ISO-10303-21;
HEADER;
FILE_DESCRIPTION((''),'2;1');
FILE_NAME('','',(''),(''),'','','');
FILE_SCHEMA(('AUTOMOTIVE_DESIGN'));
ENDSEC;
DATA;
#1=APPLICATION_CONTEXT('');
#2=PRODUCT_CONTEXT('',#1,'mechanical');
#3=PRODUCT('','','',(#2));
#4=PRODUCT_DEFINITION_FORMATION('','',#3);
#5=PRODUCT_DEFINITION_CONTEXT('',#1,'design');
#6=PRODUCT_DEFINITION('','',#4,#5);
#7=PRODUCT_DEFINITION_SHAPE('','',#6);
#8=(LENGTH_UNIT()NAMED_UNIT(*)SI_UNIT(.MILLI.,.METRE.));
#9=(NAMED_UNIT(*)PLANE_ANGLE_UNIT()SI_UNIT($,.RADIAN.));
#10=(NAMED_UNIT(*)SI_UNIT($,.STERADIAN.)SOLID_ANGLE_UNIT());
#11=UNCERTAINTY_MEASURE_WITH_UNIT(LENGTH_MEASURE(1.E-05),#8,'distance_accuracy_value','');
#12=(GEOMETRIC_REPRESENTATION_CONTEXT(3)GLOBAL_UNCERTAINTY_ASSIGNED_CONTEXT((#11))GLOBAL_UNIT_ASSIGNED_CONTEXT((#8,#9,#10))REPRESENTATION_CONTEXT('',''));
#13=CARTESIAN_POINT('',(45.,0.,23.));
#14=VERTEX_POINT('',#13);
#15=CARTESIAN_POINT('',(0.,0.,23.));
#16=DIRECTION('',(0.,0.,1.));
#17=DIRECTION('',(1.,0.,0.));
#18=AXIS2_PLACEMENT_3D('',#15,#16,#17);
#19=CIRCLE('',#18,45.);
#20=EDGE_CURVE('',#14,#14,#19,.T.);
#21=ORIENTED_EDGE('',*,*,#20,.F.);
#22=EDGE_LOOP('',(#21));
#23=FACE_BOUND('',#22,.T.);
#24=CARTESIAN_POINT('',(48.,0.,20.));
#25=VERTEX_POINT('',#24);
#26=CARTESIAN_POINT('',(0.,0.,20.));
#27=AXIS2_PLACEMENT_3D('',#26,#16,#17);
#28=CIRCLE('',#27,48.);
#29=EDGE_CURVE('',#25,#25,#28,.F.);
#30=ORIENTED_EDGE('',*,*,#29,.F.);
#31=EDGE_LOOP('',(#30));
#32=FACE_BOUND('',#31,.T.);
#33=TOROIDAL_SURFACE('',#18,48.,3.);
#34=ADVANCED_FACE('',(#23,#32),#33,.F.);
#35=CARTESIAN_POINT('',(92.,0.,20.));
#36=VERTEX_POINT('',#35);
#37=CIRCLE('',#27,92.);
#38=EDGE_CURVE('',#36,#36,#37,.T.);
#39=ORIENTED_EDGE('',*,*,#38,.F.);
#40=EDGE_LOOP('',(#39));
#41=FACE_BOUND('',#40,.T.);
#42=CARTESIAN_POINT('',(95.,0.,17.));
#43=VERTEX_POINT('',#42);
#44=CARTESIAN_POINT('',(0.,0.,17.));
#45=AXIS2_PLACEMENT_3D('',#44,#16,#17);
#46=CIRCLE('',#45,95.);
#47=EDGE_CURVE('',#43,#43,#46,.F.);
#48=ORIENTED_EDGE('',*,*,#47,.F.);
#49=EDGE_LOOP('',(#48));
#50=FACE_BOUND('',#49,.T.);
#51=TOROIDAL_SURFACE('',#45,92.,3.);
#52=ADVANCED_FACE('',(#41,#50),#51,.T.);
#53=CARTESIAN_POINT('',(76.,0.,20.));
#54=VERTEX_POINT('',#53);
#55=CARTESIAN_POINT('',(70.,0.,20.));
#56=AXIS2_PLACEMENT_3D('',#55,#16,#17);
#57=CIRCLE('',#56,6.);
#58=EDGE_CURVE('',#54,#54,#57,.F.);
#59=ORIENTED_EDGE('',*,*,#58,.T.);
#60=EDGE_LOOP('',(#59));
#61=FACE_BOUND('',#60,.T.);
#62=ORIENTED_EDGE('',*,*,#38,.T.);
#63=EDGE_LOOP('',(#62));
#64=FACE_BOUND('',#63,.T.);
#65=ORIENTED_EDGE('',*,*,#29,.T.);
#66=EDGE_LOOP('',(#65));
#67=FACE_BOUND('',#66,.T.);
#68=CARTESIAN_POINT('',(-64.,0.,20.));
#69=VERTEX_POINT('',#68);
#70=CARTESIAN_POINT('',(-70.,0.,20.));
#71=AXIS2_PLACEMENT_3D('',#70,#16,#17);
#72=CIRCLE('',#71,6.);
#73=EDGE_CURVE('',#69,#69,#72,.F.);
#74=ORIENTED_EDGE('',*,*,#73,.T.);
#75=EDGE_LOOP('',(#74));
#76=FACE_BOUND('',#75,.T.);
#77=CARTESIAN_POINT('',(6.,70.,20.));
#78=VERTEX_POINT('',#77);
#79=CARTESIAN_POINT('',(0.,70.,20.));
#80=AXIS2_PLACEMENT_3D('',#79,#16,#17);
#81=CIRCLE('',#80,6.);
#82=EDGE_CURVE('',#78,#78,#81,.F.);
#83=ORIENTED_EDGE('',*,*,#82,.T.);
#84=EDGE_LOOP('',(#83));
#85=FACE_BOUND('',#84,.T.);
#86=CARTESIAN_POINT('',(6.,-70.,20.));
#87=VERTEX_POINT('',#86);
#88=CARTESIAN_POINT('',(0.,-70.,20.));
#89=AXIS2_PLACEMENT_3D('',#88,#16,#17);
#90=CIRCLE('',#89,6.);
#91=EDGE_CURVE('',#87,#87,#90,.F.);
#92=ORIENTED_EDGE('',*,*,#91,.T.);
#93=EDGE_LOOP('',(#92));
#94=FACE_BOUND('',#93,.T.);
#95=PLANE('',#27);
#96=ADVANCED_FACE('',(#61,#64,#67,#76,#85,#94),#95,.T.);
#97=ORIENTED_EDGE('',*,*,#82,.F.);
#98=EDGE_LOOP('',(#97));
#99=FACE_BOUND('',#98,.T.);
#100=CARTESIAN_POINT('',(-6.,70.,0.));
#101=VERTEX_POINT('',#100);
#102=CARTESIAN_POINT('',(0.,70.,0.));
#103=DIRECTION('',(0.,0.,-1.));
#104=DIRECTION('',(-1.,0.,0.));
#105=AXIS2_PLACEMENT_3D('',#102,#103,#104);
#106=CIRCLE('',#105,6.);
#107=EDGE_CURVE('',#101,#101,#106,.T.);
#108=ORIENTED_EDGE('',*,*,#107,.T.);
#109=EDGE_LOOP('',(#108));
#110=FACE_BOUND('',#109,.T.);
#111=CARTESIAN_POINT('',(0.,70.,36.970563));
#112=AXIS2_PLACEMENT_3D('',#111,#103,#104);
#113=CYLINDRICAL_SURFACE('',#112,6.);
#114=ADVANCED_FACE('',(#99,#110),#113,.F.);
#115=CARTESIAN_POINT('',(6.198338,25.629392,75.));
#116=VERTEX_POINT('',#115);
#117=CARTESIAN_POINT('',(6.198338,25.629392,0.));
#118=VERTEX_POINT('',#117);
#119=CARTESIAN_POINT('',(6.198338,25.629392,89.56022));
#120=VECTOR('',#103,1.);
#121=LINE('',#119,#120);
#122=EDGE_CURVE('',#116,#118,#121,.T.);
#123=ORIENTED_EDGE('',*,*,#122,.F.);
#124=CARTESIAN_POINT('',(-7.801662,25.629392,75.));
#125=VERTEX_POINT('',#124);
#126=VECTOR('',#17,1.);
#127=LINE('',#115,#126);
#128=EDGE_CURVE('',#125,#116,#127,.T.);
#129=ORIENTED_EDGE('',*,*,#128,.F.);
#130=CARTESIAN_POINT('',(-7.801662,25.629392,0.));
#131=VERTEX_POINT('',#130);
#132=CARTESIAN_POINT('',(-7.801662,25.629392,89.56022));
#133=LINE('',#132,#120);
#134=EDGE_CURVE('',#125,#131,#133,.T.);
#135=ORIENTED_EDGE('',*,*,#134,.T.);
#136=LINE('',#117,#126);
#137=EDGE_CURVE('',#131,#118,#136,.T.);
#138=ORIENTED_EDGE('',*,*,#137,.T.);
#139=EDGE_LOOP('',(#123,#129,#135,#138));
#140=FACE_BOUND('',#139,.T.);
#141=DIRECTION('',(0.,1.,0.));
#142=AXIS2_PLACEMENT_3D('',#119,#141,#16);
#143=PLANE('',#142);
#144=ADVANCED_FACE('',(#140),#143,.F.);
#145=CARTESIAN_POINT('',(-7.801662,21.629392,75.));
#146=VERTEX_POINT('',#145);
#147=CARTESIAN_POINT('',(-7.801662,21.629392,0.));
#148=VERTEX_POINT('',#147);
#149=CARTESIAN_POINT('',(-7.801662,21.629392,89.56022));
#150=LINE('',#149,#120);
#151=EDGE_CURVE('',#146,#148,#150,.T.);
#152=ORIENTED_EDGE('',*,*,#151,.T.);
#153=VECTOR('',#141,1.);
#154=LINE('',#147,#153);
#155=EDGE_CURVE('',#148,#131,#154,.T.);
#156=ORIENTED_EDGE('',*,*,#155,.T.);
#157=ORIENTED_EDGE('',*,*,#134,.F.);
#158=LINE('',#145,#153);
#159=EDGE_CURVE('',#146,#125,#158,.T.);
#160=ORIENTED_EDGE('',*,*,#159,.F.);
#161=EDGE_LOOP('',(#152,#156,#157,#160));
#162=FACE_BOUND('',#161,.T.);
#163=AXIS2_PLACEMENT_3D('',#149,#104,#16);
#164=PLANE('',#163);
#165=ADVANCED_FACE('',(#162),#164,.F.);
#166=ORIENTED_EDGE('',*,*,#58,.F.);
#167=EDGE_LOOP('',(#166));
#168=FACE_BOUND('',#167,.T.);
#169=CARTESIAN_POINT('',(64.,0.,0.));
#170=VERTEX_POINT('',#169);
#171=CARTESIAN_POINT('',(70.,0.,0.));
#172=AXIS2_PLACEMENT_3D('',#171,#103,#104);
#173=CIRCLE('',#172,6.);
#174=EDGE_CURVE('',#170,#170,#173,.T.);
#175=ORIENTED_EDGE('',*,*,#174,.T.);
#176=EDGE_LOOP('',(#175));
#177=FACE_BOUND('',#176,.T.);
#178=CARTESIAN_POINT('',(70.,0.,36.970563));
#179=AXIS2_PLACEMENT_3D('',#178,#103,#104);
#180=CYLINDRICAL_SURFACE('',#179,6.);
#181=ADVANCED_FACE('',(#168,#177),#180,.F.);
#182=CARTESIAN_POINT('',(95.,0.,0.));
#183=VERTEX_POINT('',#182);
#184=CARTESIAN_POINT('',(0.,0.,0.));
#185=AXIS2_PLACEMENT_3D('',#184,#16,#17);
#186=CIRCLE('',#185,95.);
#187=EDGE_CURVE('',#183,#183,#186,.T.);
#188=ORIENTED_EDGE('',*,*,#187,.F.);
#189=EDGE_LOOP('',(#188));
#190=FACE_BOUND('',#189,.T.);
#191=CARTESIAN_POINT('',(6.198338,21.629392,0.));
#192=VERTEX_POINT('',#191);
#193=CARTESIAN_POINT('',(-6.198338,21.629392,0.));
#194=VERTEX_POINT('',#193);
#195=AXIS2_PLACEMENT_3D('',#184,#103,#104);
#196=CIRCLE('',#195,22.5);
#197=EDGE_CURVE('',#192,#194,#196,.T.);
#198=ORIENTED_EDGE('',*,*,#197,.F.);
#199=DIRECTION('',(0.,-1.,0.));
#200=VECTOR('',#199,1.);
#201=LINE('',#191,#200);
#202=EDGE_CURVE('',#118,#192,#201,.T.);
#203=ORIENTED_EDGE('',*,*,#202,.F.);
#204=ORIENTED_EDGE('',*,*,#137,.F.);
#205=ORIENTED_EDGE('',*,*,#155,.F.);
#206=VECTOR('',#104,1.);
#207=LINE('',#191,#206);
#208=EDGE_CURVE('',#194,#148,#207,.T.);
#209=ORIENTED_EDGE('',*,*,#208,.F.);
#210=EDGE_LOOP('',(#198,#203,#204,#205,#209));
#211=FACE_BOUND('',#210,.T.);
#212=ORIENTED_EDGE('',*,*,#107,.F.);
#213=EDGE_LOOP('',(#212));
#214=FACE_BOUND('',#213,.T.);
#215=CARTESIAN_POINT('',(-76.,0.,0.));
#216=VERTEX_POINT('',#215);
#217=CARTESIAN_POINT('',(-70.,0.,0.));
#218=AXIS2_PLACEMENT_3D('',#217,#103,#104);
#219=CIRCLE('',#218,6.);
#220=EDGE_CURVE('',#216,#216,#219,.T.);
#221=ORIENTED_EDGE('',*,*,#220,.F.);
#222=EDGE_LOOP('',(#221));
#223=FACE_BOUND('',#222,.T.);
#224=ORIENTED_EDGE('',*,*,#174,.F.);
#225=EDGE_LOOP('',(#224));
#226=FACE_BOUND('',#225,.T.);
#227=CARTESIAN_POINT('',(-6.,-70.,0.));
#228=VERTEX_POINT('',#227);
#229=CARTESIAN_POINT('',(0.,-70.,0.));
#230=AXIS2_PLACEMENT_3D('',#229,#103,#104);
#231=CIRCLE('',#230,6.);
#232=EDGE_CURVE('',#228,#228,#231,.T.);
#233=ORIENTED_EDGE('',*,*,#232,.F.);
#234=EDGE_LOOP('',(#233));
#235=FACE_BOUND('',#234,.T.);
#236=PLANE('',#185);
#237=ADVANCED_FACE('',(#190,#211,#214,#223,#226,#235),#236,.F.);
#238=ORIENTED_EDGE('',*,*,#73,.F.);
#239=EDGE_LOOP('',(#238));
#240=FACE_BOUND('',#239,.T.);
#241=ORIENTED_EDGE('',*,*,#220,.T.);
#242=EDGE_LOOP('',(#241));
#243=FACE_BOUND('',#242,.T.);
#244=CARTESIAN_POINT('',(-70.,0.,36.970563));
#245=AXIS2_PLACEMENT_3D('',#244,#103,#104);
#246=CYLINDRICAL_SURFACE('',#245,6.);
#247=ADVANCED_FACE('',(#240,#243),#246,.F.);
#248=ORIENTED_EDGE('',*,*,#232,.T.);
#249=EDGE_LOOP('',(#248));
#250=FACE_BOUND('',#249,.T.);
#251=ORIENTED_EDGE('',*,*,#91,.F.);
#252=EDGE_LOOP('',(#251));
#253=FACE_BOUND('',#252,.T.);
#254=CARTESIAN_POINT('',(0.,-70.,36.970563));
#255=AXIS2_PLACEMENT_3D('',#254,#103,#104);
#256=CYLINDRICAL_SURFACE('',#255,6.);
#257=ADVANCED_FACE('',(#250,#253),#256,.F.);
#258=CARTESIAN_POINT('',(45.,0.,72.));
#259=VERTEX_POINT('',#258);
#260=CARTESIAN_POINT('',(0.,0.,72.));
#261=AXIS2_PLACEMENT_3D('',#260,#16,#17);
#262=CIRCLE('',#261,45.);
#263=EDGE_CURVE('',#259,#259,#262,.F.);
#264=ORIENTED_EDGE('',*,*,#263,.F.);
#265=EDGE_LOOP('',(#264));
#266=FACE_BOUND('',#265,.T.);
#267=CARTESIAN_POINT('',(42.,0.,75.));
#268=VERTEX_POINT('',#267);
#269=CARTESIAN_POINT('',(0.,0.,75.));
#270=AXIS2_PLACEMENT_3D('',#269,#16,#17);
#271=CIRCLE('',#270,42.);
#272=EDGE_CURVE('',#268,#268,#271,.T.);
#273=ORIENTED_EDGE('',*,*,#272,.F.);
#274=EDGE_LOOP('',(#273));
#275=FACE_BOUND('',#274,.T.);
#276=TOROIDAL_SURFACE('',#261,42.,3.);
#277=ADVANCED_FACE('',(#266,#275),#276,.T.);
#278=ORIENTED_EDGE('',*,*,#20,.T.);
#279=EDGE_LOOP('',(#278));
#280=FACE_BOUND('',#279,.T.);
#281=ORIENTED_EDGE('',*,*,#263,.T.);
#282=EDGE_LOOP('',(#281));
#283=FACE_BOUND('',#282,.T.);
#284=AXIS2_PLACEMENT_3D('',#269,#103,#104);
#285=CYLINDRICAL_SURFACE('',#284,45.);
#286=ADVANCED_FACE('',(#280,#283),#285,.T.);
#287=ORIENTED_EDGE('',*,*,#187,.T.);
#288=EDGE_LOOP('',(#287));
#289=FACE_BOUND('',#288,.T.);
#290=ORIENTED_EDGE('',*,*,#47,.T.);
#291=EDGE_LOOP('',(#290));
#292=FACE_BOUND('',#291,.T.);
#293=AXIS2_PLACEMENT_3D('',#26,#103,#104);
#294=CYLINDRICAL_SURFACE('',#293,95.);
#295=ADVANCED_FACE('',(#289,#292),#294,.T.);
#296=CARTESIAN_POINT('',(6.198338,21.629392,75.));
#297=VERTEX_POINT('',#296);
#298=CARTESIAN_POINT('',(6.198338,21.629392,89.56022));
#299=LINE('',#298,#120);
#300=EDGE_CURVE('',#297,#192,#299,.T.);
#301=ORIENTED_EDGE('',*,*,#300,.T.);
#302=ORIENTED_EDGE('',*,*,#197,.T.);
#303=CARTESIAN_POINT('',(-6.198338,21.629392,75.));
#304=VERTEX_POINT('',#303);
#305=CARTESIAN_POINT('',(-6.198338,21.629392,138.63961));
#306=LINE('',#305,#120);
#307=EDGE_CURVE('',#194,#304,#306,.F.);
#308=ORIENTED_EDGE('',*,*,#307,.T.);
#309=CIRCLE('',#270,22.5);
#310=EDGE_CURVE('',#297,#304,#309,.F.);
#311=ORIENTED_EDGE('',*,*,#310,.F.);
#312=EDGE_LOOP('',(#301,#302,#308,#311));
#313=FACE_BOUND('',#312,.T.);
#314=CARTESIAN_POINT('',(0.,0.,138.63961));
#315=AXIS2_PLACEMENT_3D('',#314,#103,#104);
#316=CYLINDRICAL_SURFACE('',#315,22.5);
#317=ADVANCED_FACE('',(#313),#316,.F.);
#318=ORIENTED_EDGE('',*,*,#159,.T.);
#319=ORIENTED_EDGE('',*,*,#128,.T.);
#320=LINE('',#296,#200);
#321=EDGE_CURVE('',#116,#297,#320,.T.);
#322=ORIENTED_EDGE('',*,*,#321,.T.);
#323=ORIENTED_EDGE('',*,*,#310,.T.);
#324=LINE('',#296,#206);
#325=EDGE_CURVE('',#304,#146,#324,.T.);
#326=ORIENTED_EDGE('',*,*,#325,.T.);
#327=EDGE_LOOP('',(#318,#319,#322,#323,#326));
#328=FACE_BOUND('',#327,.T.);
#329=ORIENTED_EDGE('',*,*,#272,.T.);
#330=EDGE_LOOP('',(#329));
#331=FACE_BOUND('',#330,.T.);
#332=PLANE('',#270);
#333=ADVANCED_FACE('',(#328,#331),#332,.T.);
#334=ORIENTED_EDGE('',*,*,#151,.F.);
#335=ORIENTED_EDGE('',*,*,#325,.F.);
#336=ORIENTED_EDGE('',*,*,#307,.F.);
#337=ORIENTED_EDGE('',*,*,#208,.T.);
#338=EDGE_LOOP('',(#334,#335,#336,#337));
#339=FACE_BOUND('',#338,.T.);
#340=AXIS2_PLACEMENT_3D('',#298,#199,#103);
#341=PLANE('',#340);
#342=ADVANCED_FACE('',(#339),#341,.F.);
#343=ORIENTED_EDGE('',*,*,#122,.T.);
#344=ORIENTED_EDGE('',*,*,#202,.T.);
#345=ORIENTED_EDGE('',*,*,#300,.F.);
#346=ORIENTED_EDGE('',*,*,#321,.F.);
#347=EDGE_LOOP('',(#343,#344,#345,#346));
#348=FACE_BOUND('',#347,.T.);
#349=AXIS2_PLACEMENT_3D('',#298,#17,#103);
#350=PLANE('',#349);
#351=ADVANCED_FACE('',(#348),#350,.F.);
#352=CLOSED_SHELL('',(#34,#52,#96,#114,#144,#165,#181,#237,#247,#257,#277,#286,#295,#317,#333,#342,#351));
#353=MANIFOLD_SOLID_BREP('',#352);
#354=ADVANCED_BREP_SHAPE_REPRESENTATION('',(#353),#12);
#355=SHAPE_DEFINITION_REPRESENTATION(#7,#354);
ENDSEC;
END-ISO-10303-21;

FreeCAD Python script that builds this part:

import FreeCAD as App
import Part
import Sketcher


def edges_at(feature, points):
    """Names of the edges that pass closest to the given points."""
    edges = feature.Shape.Edges
    near = lambda p: min(range(len(edges)), key=lambda i: edges[i].distToShape(Part.Vertex(*p))[0])
    return sorted({f"Edge{near(p) + 1}" for p in points})

doc = App.newDocument("Part")
body = doc.addObject("PartDesign::Body", "Body")

sketch1 = body.newObject("Sketcher::SketchObject", "Sketch")
sketch1.AttachmentSupport = (doc.getObject("XY_Plane"), [""])
sketch1.MapMode = "FlatFace"
sketch1.addGeometry(Part.Circle(App.Vector(0, 0, 0), App.Vector(0, 0, 1), 95), False)
sketch1.addConstraint(Sketcher.Constraint("Coincident", 0, 3, -1, 1))
sketch1.addConstraint(Sketcher.Constraint("Diameter", 0, 190.0))
pad1 = body.newObject("PartDesign::Pad", "Pad")
pad1.Profile = sketch1
pad1.Length = 20

sketch2 = body.newObject("Sketcher::SketchObject", "Sketch001")
sketch2.AttachmentSupport = (doc.getObject("XY_Plane"), [""])
sketch2.MapMode = "FlatFace"
sketch2.AttachmentOffset = App.Placement(App.Vector(0, 0, 20), App.Rotation())
sketch2.addGeometry(Part.Circle(App.Vector(0, 0, 0), App.Vector(0, 0, 1), 45), False)
sketch2.addConstraint(Sketcher.Constraint("Coincident", 0, 3, -1, 1))
sketch2.addConstraint(Sketcher.Constraint("Diameter", 0, 90.0))
pad2 = body.newObject("PartDesign::Pad", "Pad001")
pad2.Profile = sketch2
pad2.Length = 55

sketch3 = body.newObject("Sketcher::SketchObject", "Sketch002")
sketch3.AttachmentSupport = (doc.getObject("XY_Plane"), [""])
sketch3.MapMode = "FlatFace"
sketch3.addGeometry(Part.Circle(App.Vector(0, 0, 0), App.Vector(0, 0, 1), 22), False)
sketch3.addConstraint(Sketcher.Constraint("Coincident", 0, 3, -1, 1))
sketch3.addConstraint(Sketcher.Constraint("Diameter", 0, 45.0))
pocket1 = body.newObject("PartDesign::Pocket", "Pocket")
pocket1.Profile = sketch3
pocket1.Length = 75
pocket1.Reversed = True

sketch4 = body.newObject("Sketcher::SketchObject", "Sketch003")
sketch4.AttachmentSupport = (doc.getObject("XY_Plane"), [""])
sketch4.MapMode = "FlatFace"
sketch4.addGeometry(Part.Circle(App.Vector(0, 70, 0), App.Vector(0, 0, 1), 6), False)
sketch4.addGeometry(Part.Circle(App.Vector(-70, 0, 0), App.Vector(0, 0, 1), 6), False)
sketch4.addGeometry(Part.Circle(App.Vector(0, -70, 0), App.Vector(0, 0, 1), 6), False)
sketch4.addGeometry(Part.Circle(App.Vector(70, 0, 0), App.Vector(0, 0, 1), 6), False)
sketch4.addConstraint(Sketcher.Constraint("Equal", 0, 1))
sketch4.addConstraint(Sketcher.Constraint("Equal", 1, 2))
sketch4.addConstraint(Sketcher.Constraint("Equal", 2, 3))
sketch4.addConstraint(Sketcher.Constraint("Symmetric", 0, 3, 2, 3, -1, 1))
sketch4.addConstraint(Sketcher.Constraint("Symmetric", 1, 3, 3, 3, -1, 1))
sketch4.addConstraint(Sketcher.Constraint("PointOnObject", 0, 3, -2))
sketch4.addConstraint(Sketcher.Constraint("PointOnObject", 1, 3, -1))
sketch4.addConstraint(Sketcher.Constraint("Diameter", 0, 12.0))
sketch4.addConstraint(Sketcher.Constraint("DistanceY", -1, 1, 0, 3, 70.0))
sketch4.addConstraint(Sketcher.Constraint("DistanceX", 1, 3, -1, 1, 70.0))
pocket2 = body.newObject("PartDesign::Pocket", "Pocket001")
pocket2.Profile = sketch4
pocket2.Length = 20
pocket2.Reversed = True

sketch5 = body.newObject("Sketcher::SketchObject", "Sketch004")
sketch5.AttachmentSupport = (doc.getObject("XY_Plane"), [""])
sketch5.MapMode = "FlatFace"
sketch5.addGeometry(Part.LineSegment(App.Vector(6.2, 25.6, 0), App.Vector(6.2, 21.6, 0)), False)
sketch5.addGeometry(Part.LineSegment(App.Vector(6.2, 21.6, 0), App.Vector(-7.8, 21.6, 0)), False)
sketch5.addGeometry(Part.LineSegment(App.Vector(-7.8, 21.6, 0), App.Vector(-7.8, 25.6, 0)), False)
sketch5.addGeometry(Part.LineSegment(App.Vector(-7.8, 25.6, 0), App.Vector(6.2, 25.6, 0)), False)
sketch5.addConstraint(Sketcher.Constraint("Coincident", 0, 2, 1, 1))
sketch5.addConstraint(Sketcher.Constraint("Coincident", 1, 2, 2, 1))
sketch5.addConstraint(Sketcher.Constraint("Coincident", 2, 2, 3, 1))
sketch5.addConstraint(Sketcher.Constraint("Coincident", 3, 2, 0, 1))
sketch5.addConstraint(Sketcher.Constraint("Vertical", 0))
sketch5.addConstraint(Sketcher.Constraint("Horizontal", 1))
sketch5.addConstraint(Sketcher.Constraint("Vertical", 2))
sketch5.addConstraint(Sketcher.Constraint("Horizontal", 3))
sketch5.addConstraint(Sketcher.Constraint("DistanceX", 1, 2, 1, 1, 14.0))
sketch5.addConstraint(Sketcher.Constraint("DistanceY", 0, 2, 0, 1, 4.0))
sketch5.addConstraint(Sketcher.Constraint("DistanceX", -1, 1, 0, 2, 6.198338))
sketch5.addConstraint(Sketcher.Constraint("DistanceY", -1, 1, 0, 2, 21.629392))
pocket3 = body.newObject("PartDesign::Pocket", "Pocket002")
pocket3.Profile = sketch5
pocket3.Length = 75
pocket3.Reversed = True
doc.recompute()

fillet = body.newObject("PartDesign::Fillet", "Fillet")
fillet.Base = (pocket3, edges_at(pocket3, [(-95, 0, 20), (-45, 0, 20), (-45, 0, 75)]))
fillet.Radius = 3

doc.recompute()
